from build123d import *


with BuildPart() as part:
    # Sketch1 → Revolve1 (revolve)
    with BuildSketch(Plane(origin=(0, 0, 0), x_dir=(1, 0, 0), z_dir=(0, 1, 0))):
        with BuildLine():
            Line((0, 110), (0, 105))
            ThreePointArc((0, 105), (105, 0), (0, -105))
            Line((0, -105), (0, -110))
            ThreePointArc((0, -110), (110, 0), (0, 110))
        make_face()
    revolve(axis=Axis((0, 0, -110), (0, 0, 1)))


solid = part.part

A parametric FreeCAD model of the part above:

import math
import FreeCAD as App
import Part
import Sketcher
from FreeCAD import Vector

doc = App.newDocument("Part")
body = doc.addObject("PartDesign::Body", "Body")

# Sketch on XZ plane
sketch1 = body.newObject("Sketcher::SketchObject", "Sketch")
sketch1.AttachmentSupport = (doc.getObject("XZ_Plane"), [""])
sketch1.MapMode = "FlatFace"
sketch1.addGeometry(Part.LineSegment(Vector(0, -110, 0), Vector(0, -105, 0)), False)
sketch1.addGeometry(Part.ArcOfCircle(Part.Circle(Vector(0, 0, 0), Vector(0, 0, 1), 105), math.radians(-90), math.radians(90)), False)
sketch1.addGeometry(Part.LineSegment(Vector(0, 105, 0), Vector(0, 110, 0)), False)
sketch1.addGeometry(Part.ArcOfCircle(Part.Circle(Vector(0, 0, 0), Vector(0, 0, 1), 110), math.radians(-90), math.radians(90)), False)
sketch1.addConstraint(Sketcher.Constraint("Coincident", 0, 2, 1, 1))
sketch1.addConstraint(Sketcher.Constraint("Coincident", 1, 2, 2, 1))
sketch1.addConstraint(Sketcher.Constraint("Coincident", 2, 2, 3, 2))
sketch1.addConstraint(Sketcher.Constraint("Coincident", 3, 1, 0, 1))
sketch1.addConstraint(Sketcher.Constraint("Vertical", 0))
sketch1.addConstraint(Sketcher.Constraint("Vertical", 2))
sketch1.addConstraint(Sketcher.Constraint("Coincident", 1, 3, -1, 1))
sketch1.addConstraint(Sketcher.Constraint("Coincident", 3, 3, -1, 1))
sketch1.addConstraint(Sketcher.Constraint("PointOnObject", 0, 2, -2))
sketch1.addConstraint(Sketcher.Constraint("PointOnObject", 1, 2, -2))
sketch1.addConstraint(Sketcher.Constraint("Radius", 1, 105.0))
sketch1.addConstraint(Sketcher.Constraint("Radius", 3, 110.0))
revolution = body.newObject("PartDesign::Revolution", "Revolution")
revolution.Profile = sketch1
revolution.ReferenceAxis = (sketch1, ["V_Axis"])
revolution.Angle = 360

doc.recompute()
